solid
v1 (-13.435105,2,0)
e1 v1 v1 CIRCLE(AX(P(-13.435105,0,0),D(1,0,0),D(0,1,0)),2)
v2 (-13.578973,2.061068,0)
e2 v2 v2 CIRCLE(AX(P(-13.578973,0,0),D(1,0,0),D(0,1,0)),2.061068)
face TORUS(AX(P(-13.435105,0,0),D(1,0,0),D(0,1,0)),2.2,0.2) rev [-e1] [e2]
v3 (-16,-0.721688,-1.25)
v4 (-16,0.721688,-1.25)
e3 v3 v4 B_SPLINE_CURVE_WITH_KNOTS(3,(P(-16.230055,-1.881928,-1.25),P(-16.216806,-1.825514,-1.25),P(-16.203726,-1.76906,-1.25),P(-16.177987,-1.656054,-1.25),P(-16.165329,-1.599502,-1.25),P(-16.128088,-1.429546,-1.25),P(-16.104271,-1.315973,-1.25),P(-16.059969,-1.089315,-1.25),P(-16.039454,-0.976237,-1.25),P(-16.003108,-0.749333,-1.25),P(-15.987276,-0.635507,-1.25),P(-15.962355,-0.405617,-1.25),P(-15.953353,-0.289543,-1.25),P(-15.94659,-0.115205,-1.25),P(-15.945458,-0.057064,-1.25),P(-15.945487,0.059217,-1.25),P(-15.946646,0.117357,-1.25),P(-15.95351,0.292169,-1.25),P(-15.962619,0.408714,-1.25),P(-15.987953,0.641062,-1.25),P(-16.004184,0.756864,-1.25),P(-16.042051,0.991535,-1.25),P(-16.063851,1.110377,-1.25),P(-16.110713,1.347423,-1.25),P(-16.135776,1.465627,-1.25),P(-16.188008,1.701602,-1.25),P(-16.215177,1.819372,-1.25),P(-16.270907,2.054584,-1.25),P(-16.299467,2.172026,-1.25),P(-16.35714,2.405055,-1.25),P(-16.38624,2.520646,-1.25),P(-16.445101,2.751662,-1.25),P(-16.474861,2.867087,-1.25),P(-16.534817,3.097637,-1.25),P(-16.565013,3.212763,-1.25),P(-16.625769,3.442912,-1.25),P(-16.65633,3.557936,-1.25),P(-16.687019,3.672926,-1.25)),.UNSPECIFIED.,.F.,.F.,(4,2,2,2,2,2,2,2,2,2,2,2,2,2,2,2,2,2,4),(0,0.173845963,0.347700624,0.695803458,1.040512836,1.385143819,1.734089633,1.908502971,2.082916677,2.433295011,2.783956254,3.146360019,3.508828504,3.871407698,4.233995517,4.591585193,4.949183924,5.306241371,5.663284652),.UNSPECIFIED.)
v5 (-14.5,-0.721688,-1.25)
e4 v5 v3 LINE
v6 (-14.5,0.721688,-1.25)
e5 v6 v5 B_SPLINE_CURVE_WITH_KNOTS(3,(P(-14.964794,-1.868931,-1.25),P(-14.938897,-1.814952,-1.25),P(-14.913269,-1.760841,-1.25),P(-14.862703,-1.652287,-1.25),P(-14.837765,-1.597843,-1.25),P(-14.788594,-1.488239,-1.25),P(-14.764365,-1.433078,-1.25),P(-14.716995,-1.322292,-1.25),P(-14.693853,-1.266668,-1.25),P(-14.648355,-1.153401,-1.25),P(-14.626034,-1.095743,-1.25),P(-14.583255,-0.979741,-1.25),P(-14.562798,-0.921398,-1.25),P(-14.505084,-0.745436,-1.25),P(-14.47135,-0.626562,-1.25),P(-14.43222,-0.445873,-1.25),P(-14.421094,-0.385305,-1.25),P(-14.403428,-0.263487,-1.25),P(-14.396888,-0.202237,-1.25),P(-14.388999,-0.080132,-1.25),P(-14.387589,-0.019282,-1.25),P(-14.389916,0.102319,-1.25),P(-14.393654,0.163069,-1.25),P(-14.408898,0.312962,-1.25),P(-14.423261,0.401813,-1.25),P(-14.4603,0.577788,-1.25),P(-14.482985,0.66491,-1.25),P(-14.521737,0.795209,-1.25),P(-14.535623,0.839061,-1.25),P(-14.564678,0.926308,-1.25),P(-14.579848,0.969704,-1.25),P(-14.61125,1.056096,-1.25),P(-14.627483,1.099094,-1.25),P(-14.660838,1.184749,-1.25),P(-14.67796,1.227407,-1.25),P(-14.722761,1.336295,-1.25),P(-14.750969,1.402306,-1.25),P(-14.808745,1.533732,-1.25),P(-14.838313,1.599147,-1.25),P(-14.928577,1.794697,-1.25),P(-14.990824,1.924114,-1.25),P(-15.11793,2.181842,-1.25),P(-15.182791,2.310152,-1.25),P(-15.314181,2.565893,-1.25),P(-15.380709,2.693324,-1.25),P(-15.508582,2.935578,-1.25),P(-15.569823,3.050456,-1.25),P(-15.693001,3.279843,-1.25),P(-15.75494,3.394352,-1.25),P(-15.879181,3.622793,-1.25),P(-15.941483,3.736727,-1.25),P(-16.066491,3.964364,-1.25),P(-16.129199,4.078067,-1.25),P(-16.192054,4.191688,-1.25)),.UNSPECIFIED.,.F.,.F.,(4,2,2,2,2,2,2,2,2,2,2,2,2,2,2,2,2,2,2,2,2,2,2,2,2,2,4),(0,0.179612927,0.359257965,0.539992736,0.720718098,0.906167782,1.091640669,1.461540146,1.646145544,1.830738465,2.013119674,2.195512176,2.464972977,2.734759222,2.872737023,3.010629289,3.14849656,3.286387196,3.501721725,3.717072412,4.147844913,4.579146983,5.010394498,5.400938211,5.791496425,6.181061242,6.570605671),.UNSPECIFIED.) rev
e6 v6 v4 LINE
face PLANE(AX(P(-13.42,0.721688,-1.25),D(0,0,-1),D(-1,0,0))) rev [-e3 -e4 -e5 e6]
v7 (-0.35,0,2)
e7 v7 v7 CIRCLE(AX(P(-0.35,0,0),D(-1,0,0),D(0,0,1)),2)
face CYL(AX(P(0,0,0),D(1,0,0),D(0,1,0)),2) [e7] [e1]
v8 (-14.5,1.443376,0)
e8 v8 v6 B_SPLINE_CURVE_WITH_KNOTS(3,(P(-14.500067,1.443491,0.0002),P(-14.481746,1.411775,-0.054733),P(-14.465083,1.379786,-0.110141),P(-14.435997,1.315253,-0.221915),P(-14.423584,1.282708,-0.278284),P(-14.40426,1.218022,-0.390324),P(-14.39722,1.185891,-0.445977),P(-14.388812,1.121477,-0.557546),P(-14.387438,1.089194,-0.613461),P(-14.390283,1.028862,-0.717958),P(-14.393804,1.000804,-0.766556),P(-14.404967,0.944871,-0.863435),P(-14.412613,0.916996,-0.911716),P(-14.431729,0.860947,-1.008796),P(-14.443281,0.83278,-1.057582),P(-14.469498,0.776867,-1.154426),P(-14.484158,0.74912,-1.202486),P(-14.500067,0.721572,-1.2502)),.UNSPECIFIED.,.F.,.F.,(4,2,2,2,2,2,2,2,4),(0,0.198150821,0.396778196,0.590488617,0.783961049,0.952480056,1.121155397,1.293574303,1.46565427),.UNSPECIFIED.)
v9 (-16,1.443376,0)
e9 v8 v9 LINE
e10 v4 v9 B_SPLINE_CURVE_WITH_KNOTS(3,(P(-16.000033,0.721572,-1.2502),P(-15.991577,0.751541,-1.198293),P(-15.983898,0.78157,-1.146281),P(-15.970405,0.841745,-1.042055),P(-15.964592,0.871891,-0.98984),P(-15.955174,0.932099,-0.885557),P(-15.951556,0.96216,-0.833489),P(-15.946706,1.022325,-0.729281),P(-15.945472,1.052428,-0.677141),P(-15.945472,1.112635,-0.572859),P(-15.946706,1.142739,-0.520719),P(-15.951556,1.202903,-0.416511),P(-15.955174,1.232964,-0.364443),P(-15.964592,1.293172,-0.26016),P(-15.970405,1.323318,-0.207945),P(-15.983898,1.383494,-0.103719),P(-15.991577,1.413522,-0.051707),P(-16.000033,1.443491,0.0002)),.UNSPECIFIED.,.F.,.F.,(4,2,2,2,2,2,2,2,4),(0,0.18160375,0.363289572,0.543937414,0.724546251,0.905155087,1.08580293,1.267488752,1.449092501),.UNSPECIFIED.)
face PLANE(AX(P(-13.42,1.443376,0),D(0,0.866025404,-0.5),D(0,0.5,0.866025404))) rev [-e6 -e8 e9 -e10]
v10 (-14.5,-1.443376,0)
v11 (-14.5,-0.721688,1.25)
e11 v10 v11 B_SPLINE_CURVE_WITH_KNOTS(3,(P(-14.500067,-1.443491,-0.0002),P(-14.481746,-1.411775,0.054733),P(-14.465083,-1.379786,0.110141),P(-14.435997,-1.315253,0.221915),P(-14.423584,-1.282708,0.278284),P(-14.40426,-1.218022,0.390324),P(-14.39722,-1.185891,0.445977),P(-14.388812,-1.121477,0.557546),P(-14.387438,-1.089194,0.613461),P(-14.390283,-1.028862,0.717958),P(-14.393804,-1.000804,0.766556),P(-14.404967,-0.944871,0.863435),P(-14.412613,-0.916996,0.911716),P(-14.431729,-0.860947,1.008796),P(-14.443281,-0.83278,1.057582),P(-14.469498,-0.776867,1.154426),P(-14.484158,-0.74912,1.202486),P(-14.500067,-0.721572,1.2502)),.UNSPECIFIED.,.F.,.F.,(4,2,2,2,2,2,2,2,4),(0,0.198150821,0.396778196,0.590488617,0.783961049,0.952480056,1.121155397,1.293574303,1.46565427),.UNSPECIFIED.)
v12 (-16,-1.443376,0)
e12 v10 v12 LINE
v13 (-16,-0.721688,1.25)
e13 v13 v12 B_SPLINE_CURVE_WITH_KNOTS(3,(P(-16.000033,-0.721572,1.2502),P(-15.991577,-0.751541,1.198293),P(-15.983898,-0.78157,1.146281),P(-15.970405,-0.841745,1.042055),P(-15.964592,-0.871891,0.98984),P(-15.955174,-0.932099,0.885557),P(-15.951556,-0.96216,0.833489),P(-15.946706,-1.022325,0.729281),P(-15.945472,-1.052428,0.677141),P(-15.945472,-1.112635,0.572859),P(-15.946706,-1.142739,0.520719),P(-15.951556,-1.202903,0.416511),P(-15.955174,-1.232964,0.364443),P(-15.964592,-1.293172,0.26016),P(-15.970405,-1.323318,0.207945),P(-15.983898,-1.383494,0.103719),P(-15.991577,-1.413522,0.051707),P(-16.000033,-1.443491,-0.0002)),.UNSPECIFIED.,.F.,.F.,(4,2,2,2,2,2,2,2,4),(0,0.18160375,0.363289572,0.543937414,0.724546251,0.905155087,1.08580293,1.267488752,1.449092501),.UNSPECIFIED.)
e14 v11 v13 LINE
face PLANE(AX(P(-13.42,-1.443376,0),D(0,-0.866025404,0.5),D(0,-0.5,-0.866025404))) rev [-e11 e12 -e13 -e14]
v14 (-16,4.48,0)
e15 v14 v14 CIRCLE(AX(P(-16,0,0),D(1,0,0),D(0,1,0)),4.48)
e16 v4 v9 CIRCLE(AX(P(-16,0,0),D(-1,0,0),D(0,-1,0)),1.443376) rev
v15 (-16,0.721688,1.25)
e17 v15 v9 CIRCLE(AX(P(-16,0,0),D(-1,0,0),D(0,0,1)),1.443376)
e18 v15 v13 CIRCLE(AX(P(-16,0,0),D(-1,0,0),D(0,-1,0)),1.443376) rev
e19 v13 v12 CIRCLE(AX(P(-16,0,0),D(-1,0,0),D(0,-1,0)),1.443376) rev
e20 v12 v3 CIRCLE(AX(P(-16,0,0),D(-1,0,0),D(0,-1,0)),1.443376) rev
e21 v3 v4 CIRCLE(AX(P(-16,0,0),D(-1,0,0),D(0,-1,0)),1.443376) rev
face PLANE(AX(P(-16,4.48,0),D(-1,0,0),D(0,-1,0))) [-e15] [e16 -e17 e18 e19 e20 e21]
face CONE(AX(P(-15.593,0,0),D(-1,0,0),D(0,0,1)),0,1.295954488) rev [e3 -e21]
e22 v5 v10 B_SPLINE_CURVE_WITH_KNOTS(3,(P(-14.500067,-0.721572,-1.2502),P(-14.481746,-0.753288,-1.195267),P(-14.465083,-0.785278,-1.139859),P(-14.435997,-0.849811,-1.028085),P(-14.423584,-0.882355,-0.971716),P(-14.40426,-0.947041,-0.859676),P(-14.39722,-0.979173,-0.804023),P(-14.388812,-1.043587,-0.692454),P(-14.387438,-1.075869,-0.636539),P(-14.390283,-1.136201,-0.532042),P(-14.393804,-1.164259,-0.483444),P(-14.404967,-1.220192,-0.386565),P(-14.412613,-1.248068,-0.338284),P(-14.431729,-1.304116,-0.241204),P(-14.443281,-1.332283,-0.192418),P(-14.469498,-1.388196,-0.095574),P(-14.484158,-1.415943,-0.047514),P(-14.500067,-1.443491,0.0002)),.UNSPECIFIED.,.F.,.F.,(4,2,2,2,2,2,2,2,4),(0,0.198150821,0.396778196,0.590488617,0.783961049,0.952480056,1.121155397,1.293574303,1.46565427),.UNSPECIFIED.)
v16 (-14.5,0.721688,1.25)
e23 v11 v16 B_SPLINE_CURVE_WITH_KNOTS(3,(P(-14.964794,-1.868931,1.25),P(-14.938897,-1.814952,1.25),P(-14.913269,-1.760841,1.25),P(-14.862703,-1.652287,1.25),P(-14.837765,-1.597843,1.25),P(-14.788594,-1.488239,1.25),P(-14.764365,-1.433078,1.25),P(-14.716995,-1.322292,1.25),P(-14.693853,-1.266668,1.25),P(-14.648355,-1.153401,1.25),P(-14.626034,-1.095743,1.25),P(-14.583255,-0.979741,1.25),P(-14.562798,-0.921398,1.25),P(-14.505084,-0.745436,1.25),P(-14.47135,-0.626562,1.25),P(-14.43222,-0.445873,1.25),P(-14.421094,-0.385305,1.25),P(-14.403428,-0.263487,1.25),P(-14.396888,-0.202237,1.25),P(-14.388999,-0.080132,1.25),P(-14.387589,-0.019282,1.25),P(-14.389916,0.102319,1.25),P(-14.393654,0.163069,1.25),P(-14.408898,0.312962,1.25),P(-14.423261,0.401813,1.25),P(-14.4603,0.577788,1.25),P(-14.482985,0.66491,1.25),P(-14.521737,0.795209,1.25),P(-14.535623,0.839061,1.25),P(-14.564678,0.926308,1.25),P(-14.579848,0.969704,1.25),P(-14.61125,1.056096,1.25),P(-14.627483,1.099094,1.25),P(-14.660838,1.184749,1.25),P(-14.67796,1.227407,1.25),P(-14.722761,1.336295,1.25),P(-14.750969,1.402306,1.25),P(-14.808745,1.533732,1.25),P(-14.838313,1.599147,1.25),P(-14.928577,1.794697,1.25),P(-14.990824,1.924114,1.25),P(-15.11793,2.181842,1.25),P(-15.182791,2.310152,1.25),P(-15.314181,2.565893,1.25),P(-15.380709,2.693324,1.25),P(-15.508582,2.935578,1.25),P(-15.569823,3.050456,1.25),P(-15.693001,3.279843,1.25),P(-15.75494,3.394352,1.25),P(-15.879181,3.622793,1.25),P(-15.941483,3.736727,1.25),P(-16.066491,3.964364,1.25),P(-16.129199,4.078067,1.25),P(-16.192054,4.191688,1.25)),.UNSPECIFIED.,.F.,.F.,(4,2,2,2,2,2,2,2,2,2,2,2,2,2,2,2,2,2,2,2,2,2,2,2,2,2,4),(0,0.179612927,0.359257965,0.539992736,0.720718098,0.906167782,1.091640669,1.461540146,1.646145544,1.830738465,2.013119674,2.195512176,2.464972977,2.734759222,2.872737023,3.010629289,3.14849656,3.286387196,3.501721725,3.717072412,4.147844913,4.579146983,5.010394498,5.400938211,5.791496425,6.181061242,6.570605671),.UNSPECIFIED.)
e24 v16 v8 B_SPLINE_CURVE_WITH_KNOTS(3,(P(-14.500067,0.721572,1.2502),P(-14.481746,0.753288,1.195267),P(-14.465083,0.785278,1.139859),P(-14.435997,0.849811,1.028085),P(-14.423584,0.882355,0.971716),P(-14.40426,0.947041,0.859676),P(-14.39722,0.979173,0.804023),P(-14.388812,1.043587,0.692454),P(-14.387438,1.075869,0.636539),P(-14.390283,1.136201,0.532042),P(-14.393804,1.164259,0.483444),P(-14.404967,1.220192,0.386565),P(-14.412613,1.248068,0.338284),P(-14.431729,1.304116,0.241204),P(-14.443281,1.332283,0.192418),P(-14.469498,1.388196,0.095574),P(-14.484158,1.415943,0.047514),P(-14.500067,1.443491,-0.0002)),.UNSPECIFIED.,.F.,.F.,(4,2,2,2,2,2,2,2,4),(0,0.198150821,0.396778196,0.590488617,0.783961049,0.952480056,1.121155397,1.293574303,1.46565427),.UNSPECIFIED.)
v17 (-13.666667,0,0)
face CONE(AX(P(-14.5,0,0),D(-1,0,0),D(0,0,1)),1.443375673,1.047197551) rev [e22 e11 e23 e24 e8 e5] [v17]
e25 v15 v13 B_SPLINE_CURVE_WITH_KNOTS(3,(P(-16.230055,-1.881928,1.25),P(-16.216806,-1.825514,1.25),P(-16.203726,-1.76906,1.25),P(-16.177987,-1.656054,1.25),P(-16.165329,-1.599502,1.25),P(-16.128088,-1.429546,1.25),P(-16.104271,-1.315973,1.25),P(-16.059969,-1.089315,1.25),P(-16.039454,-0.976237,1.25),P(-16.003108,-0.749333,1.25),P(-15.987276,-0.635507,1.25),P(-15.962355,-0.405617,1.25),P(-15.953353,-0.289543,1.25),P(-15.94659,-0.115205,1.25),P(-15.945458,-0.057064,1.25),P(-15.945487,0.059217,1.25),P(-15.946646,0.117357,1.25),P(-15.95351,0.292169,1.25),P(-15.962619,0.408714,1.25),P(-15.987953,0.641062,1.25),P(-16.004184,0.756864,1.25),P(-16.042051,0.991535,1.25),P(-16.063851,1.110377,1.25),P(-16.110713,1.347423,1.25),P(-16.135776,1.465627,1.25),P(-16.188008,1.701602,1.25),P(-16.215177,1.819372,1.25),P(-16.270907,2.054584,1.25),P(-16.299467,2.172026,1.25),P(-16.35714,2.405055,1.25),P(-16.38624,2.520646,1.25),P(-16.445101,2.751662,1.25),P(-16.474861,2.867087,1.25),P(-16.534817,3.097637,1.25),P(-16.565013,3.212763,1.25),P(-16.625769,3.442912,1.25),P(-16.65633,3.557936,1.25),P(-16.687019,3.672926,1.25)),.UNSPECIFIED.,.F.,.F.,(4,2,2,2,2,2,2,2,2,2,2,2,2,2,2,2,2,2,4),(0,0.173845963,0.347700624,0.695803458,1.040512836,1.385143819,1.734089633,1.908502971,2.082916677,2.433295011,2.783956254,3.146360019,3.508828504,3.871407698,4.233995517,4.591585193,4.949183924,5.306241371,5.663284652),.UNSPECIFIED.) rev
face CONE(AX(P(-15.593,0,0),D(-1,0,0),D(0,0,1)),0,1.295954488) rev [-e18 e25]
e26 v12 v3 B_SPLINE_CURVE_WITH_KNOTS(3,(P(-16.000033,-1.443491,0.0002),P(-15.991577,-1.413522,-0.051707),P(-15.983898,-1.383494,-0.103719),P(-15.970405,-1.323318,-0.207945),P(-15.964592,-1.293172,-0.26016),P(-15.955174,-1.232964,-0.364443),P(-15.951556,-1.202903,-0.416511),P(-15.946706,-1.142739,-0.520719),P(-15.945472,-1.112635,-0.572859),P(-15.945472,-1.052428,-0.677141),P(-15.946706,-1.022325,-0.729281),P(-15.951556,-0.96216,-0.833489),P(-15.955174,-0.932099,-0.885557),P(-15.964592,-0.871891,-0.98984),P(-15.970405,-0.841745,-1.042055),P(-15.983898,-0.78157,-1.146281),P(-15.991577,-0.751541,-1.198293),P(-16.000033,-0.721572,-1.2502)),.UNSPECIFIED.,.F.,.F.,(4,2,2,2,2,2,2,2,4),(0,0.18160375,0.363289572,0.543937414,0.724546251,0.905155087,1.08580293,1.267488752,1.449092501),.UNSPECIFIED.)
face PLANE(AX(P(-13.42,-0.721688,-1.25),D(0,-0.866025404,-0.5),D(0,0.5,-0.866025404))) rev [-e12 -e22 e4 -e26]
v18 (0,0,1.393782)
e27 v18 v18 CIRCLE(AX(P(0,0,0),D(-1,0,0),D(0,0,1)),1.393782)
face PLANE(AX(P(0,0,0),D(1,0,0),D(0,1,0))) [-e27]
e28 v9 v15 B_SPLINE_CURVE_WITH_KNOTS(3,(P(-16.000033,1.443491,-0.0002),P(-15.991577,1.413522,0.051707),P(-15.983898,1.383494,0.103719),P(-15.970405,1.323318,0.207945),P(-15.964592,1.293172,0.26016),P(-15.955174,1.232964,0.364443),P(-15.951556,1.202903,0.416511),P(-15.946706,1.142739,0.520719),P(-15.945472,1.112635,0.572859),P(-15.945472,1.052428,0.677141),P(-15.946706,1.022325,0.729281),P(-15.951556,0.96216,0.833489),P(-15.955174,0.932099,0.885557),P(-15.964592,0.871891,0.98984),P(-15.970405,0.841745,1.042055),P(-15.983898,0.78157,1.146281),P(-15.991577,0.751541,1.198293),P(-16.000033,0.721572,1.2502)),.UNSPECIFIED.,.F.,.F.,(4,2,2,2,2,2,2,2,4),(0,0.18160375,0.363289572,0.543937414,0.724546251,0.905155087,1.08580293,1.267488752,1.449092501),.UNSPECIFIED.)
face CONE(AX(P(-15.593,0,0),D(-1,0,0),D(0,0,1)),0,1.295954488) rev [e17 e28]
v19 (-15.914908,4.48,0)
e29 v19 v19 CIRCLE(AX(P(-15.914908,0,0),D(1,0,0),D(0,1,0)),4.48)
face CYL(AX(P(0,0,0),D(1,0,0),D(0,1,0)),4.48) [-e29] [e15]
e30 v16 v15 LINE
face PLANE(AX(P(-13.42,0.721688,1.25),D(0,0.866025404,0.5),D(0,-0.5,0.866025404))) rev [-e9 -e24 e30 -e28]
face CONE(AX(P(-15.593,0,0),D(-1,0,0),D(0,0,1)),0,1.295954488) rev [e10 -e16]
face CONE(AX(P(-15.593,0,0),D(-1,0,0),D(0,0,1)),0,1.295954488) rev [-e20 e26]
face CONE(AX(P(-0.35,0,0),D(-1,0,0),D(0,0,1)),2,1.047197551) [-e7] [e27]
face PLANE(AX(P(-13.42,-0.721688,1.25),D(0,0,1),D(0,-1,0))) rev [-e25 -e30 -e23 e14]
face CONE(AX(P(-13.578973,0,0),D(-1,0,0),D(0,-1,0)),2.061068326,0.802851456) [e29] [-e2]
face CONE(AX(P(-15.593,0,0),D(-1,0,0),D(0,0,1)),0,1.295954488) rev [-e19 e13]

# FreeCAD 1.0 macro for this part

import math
import FreeCAD as App
import Part
import Sketcher
from FreeCAD import Vector
Q = App.Units.Quantity


def add_polygon(sketch, points):
    """Adds a closed chain of lines whose ends are joined by coincident constraints."""
    first, n = sketch.GeometryCount, len(points)
    for a, b in zip(points, points[1:] + points[:1]):
        sketch.addGeometry(Part.LineSegment(App.Vector(*a, 0), App.Vector(*b, 0)), False)
    for i in range(n):
        sketch.addConstraint(Sketcher.Constraint("Coincident", first + i, 2, first + (i + 1) % n, 1))

doc = App.newDocument("Part")
body = doc.addObject("PartDesign::Body", "Body")

# Sketch on XY plane
sketch1 = body.newObject("Sketcher::SketchObject", "Sketch")
sketch1.AttachmentSupport = (doc.getObject("XY_Plane"), [""])
sketch1.MapMode = "FlatFace"
sketch1.addGeometry(Part.LineSegment(Vector(0, 2, 0), Vector(-13.435105, 2, 0)), False)
sketch1.addGeometry(Part.ArcOfCircle(Part.Circle(Vector(-13.435105, 2.2, 0), Vector(0, 0, 1), 0.2), math.radians(-136), math.radians(-90)), False)
sketch1.addGeometry(Part.LineSegment(Vector(-13.578973, 2.061068, 0), Vector(-15.914908, 4.48, 0)), False)
sketch1.addGeometry(Part.LineSegment(Vector(-15.914908, 4.48, 0), Vector(-16, 4.48, 0)), False)
sketch1.addGeometry(Part.LineSegment(Vector(-16, 4.48, 0), Vector(-16, 0, 0)), False)
sketch1.addGeometry(Part.LineSegment(Vector(-16, 0, 0), Vector(0, 0, 0)), False)
sketch1.addGeometry(Part.LineSegment(Vector(0, 0, 0), Vector(0, 2, 0)), False)
sketch1.addConstraint(Sketcher.Constraint("Tangent", 0, 2, 1, 2))
sketch1.addConstraint(Sketcher.Constraint("Tangent", 1, 1, 2, 1))
sketch1.addConstraint(Sketcher.Constraint("Coincident", 2, 2, 3, 1))
sketch1.addConstraint(Sketcher.Constraint("Coincident", 3, 2, 4, 1))
sketch1.addConstraint(Sketcher.Constraint("Coincident", 4, 2, 5, 1))
sketch1.addConstraint(Sketcher.Constraint("Coincident", 5, 2, 6, 1))
sketch1.addConstraint(Sketcher.Constraint("Coincident", 6, 2, 0, 1))
sketch1.addConstraint(Sketcher.Constraint("Horizontal", 0))
sketch1.addConstraint(Sketcher.Constraint("Horizontal", 3))
sketch1.addConstraint(Sketcher.Constraint("Vertical", 4))
sketch1.addConstraint(Sketcher.Constraint("Horizontal", 5))
sketch1.addConstraint(Sketcher.Constraint("Vertical", 6))
sketch1.addConstraint(Sketcher.Constraint("Coincident", 5, 2, -1, 1))
sketch1.addConstraint(Sketcher.Constraint("Radius", 1, 0.2))
sketch1.addConstraint(Sketcher.Constraint("DistanceX", 5, 1, 5, 2, 16.0))
sketch1.addConstraint(Sketcher.Constraint("DistanceY", 6, 1, 6, 2, 2.0))
sketch1.addConstraint(Sketcher.Constraint("Angle", 2, Q("134 deg")))
sketch1.addConstraint(Sketcher.Constraint("DistanceY", 4, 2, 4, 1, 4.48))
sketch1.addConstraint(Sketcher.Constraint("DistanceX", 3, 2, 3, 1, 0.085092))
revolution = body.newObject("PartDesign::Revolution", "Revolution")
revolution.Profile = sketch1
revolution.ReferenceAxis = (sketch1, ["H_Axis"])
revolution.Angle = 360

# Sketch on YZ plane
sketch2 = body.newObject("Sketcher::SketchObject", "Sketch001")
sketch2.AttachmentSupport = (doc.getObject("YZ_Plane"), [""])
sketch2.MapMode = "FlatFace"
sketch2.AttachmentOffset = App.Placement(Vector(0, 0, -16), App.Rotation())
add_polygon(sketch2, [(1.443376, 0), (0.721688, -1.25), (-0.721688, -1.25), (-1.443376, 0), (-0.721688, 1.25), (0.721688, 1.25)])  # lines 0-5
sketch2.addConstraint(Sketcher.Constraint("Horizontal", 1))
sketch2.addConstraint(Sketcher.Constraint("Horizontal", 4))
sketch2.addConstraint(Sketcher.Constraint("Symmetric", 0, 2, 3, 2, -1, 1))
sketch2.addConstraint(Sketcher.Constraint("Symmetric", 2, 2, 5, 2, -1, 1))
sketch2.addConstraint(Sketcher.Constraint("PointOnObject", 2, 2, -1))
sketch2.addConstraint(Sketcher.Constraint("Parallel", 2, 5))
sketch2.addConstraint(Sketcher.Constraint("Vertical", 1, 2, 3, 2))
sketch2.addConstraint(Sketcher.Constraint("Angle", 0, Q("-120 deg")))
sketch2.addConstraint(Sketcher.Constraint("DistanceY", 1, 2, 3, 2, 2.5))
sketch2.addConstraint(Sketcher.Constraint("DistanceX", 1, 2, 1, 1, 1.443376))
pocket1 = body.newObject("PartDesign::Pocket", "Pocket")
pocket1.Profile = sketch2
pocket1.Length = 2.58
pocket1.Reversed = True

# Sketch on XY plane
sketch3 = body.newObject("Sketcher::SketchObject", "Sketch002")
sketch3.AttachmentSupport = (doc.getObject("XY_Plane"), [""])
sketch3.MapMode = "FlatFace"
add_polygon(sketch3, [(-14.5, 1.443376), (-13.666667, 0), (-13.05, 0), (-13.05, 1.443376)])  # lines 0-3
sketch3.addConstraint(Sketcher.Constraint("Horizontal", 1))
sketch3.addConstraint(Sketcher.Constraint("Vertical", 2))
sketch3.addConstraint(Sketcher.Constraint("Horizontal", 3))
sketch3.addConstraint(Sketcher.Constraint("PointOnObject", 0, 2, -1))
sketch3.addConstraint(Sketcher.Constraint("Angle", 0, Q("-60 deg")))
sketch3.addConstraint(Sketcher.Constraint("DistanceX", 3, 2, 3, 1, 1.45))
sketch3.addConstraint(Sketcher.Constraint("DistanceX", 3, 2, -1, 1, 14.5))
sketch3.addConstraint(Sketcher.Constraint("DistanceX", 1, 1, 1, 2, 0.616667))
revolution2 = body.newObject("PartDesign::Revolution", "Revolution001")
revolution2.Profile = sketch3
revolution2.ReferenceAxis = (sketch3, ["H_Axis"])
revolution2.Angle = 360

# Sketch on XY plane
sketch4 = body.newObject("Sketcher::SketchObject", "Sketch003")
sketch4.AttachmentSupport = (doc.getObject("XY_Plane"), [""])
sketch4.MapMode = "FlatFace"
add_polygon(sketch4, [(-16, 1.443376), (-16, 0), (-15.593, 0)])  # lines 0-2
sketch4.addConstraint(Sketcher.Constraint("Vertical", 0))
sketch4.addConstraint(Sketcher.Constraint("Horizontal", 1))
sketch4.addConstraint(Sketcher.Constraint("PointOnObject", 0, 2, -1))
sketch4.addConstraint(Sketcher.Constraint("DistanceX", 0, 2, -1, 1, 16.0))
sketch4.addConstraint(Sketcher.Constraint("DistanceX", 1, 1, 1, 2, 0.407))
sketch4.addConstraint(Sketcher.Constraint("Distance", 2, 1.499661))
groove = body.newObject("PartDesign::Groove", "Groove")
groove.Profile = sketch4
groove.ReferenceAxis = (sketch4, ["H_Axis"])
groove.Angle = 360

# Sketch on XY plane
sketch5 = body.newObject("Sketcher::SketchObject", "Sketch004")
sketch5.AttachmentSupport = (doc.getObject("XY_Plane"), [""])
sketch5.MapMode = "FlatFace"
add_polygon(sketch5, [(-0.35, 2), (0, 1.393782), (0.35, 2)])  # lines 0-2
sketch5.addConstraint(Sketcher.Constraint("Horizontal", 2))
sketch5.addConstraint(Sketcher.Constraint("PointOnObject", 0, 2, -2))
sketch5.addConstraint(Sketcher.Constraint("Equal", 0, 1))
sketch5.addConstraint(Sketcher.Constraint("Angle", 0, Q("-60 deg")))
sketch5.addConstraint(Sketcher.Constraint("DistanceX", 2, 2, 2, 1, 0.7))
sketch5.addConstraint(Sketcher.Constraint("DistanceY", -1, 1, 1, 2, 2.0))
groove2 = body.newObject("PartDesign::Groove", "Groove001")
groove2.Profile = sketch5
groove2.ReferenceAxis = (sketch5, ["H_Axis"])
groove2.Angle = 360

doc.recompute()
